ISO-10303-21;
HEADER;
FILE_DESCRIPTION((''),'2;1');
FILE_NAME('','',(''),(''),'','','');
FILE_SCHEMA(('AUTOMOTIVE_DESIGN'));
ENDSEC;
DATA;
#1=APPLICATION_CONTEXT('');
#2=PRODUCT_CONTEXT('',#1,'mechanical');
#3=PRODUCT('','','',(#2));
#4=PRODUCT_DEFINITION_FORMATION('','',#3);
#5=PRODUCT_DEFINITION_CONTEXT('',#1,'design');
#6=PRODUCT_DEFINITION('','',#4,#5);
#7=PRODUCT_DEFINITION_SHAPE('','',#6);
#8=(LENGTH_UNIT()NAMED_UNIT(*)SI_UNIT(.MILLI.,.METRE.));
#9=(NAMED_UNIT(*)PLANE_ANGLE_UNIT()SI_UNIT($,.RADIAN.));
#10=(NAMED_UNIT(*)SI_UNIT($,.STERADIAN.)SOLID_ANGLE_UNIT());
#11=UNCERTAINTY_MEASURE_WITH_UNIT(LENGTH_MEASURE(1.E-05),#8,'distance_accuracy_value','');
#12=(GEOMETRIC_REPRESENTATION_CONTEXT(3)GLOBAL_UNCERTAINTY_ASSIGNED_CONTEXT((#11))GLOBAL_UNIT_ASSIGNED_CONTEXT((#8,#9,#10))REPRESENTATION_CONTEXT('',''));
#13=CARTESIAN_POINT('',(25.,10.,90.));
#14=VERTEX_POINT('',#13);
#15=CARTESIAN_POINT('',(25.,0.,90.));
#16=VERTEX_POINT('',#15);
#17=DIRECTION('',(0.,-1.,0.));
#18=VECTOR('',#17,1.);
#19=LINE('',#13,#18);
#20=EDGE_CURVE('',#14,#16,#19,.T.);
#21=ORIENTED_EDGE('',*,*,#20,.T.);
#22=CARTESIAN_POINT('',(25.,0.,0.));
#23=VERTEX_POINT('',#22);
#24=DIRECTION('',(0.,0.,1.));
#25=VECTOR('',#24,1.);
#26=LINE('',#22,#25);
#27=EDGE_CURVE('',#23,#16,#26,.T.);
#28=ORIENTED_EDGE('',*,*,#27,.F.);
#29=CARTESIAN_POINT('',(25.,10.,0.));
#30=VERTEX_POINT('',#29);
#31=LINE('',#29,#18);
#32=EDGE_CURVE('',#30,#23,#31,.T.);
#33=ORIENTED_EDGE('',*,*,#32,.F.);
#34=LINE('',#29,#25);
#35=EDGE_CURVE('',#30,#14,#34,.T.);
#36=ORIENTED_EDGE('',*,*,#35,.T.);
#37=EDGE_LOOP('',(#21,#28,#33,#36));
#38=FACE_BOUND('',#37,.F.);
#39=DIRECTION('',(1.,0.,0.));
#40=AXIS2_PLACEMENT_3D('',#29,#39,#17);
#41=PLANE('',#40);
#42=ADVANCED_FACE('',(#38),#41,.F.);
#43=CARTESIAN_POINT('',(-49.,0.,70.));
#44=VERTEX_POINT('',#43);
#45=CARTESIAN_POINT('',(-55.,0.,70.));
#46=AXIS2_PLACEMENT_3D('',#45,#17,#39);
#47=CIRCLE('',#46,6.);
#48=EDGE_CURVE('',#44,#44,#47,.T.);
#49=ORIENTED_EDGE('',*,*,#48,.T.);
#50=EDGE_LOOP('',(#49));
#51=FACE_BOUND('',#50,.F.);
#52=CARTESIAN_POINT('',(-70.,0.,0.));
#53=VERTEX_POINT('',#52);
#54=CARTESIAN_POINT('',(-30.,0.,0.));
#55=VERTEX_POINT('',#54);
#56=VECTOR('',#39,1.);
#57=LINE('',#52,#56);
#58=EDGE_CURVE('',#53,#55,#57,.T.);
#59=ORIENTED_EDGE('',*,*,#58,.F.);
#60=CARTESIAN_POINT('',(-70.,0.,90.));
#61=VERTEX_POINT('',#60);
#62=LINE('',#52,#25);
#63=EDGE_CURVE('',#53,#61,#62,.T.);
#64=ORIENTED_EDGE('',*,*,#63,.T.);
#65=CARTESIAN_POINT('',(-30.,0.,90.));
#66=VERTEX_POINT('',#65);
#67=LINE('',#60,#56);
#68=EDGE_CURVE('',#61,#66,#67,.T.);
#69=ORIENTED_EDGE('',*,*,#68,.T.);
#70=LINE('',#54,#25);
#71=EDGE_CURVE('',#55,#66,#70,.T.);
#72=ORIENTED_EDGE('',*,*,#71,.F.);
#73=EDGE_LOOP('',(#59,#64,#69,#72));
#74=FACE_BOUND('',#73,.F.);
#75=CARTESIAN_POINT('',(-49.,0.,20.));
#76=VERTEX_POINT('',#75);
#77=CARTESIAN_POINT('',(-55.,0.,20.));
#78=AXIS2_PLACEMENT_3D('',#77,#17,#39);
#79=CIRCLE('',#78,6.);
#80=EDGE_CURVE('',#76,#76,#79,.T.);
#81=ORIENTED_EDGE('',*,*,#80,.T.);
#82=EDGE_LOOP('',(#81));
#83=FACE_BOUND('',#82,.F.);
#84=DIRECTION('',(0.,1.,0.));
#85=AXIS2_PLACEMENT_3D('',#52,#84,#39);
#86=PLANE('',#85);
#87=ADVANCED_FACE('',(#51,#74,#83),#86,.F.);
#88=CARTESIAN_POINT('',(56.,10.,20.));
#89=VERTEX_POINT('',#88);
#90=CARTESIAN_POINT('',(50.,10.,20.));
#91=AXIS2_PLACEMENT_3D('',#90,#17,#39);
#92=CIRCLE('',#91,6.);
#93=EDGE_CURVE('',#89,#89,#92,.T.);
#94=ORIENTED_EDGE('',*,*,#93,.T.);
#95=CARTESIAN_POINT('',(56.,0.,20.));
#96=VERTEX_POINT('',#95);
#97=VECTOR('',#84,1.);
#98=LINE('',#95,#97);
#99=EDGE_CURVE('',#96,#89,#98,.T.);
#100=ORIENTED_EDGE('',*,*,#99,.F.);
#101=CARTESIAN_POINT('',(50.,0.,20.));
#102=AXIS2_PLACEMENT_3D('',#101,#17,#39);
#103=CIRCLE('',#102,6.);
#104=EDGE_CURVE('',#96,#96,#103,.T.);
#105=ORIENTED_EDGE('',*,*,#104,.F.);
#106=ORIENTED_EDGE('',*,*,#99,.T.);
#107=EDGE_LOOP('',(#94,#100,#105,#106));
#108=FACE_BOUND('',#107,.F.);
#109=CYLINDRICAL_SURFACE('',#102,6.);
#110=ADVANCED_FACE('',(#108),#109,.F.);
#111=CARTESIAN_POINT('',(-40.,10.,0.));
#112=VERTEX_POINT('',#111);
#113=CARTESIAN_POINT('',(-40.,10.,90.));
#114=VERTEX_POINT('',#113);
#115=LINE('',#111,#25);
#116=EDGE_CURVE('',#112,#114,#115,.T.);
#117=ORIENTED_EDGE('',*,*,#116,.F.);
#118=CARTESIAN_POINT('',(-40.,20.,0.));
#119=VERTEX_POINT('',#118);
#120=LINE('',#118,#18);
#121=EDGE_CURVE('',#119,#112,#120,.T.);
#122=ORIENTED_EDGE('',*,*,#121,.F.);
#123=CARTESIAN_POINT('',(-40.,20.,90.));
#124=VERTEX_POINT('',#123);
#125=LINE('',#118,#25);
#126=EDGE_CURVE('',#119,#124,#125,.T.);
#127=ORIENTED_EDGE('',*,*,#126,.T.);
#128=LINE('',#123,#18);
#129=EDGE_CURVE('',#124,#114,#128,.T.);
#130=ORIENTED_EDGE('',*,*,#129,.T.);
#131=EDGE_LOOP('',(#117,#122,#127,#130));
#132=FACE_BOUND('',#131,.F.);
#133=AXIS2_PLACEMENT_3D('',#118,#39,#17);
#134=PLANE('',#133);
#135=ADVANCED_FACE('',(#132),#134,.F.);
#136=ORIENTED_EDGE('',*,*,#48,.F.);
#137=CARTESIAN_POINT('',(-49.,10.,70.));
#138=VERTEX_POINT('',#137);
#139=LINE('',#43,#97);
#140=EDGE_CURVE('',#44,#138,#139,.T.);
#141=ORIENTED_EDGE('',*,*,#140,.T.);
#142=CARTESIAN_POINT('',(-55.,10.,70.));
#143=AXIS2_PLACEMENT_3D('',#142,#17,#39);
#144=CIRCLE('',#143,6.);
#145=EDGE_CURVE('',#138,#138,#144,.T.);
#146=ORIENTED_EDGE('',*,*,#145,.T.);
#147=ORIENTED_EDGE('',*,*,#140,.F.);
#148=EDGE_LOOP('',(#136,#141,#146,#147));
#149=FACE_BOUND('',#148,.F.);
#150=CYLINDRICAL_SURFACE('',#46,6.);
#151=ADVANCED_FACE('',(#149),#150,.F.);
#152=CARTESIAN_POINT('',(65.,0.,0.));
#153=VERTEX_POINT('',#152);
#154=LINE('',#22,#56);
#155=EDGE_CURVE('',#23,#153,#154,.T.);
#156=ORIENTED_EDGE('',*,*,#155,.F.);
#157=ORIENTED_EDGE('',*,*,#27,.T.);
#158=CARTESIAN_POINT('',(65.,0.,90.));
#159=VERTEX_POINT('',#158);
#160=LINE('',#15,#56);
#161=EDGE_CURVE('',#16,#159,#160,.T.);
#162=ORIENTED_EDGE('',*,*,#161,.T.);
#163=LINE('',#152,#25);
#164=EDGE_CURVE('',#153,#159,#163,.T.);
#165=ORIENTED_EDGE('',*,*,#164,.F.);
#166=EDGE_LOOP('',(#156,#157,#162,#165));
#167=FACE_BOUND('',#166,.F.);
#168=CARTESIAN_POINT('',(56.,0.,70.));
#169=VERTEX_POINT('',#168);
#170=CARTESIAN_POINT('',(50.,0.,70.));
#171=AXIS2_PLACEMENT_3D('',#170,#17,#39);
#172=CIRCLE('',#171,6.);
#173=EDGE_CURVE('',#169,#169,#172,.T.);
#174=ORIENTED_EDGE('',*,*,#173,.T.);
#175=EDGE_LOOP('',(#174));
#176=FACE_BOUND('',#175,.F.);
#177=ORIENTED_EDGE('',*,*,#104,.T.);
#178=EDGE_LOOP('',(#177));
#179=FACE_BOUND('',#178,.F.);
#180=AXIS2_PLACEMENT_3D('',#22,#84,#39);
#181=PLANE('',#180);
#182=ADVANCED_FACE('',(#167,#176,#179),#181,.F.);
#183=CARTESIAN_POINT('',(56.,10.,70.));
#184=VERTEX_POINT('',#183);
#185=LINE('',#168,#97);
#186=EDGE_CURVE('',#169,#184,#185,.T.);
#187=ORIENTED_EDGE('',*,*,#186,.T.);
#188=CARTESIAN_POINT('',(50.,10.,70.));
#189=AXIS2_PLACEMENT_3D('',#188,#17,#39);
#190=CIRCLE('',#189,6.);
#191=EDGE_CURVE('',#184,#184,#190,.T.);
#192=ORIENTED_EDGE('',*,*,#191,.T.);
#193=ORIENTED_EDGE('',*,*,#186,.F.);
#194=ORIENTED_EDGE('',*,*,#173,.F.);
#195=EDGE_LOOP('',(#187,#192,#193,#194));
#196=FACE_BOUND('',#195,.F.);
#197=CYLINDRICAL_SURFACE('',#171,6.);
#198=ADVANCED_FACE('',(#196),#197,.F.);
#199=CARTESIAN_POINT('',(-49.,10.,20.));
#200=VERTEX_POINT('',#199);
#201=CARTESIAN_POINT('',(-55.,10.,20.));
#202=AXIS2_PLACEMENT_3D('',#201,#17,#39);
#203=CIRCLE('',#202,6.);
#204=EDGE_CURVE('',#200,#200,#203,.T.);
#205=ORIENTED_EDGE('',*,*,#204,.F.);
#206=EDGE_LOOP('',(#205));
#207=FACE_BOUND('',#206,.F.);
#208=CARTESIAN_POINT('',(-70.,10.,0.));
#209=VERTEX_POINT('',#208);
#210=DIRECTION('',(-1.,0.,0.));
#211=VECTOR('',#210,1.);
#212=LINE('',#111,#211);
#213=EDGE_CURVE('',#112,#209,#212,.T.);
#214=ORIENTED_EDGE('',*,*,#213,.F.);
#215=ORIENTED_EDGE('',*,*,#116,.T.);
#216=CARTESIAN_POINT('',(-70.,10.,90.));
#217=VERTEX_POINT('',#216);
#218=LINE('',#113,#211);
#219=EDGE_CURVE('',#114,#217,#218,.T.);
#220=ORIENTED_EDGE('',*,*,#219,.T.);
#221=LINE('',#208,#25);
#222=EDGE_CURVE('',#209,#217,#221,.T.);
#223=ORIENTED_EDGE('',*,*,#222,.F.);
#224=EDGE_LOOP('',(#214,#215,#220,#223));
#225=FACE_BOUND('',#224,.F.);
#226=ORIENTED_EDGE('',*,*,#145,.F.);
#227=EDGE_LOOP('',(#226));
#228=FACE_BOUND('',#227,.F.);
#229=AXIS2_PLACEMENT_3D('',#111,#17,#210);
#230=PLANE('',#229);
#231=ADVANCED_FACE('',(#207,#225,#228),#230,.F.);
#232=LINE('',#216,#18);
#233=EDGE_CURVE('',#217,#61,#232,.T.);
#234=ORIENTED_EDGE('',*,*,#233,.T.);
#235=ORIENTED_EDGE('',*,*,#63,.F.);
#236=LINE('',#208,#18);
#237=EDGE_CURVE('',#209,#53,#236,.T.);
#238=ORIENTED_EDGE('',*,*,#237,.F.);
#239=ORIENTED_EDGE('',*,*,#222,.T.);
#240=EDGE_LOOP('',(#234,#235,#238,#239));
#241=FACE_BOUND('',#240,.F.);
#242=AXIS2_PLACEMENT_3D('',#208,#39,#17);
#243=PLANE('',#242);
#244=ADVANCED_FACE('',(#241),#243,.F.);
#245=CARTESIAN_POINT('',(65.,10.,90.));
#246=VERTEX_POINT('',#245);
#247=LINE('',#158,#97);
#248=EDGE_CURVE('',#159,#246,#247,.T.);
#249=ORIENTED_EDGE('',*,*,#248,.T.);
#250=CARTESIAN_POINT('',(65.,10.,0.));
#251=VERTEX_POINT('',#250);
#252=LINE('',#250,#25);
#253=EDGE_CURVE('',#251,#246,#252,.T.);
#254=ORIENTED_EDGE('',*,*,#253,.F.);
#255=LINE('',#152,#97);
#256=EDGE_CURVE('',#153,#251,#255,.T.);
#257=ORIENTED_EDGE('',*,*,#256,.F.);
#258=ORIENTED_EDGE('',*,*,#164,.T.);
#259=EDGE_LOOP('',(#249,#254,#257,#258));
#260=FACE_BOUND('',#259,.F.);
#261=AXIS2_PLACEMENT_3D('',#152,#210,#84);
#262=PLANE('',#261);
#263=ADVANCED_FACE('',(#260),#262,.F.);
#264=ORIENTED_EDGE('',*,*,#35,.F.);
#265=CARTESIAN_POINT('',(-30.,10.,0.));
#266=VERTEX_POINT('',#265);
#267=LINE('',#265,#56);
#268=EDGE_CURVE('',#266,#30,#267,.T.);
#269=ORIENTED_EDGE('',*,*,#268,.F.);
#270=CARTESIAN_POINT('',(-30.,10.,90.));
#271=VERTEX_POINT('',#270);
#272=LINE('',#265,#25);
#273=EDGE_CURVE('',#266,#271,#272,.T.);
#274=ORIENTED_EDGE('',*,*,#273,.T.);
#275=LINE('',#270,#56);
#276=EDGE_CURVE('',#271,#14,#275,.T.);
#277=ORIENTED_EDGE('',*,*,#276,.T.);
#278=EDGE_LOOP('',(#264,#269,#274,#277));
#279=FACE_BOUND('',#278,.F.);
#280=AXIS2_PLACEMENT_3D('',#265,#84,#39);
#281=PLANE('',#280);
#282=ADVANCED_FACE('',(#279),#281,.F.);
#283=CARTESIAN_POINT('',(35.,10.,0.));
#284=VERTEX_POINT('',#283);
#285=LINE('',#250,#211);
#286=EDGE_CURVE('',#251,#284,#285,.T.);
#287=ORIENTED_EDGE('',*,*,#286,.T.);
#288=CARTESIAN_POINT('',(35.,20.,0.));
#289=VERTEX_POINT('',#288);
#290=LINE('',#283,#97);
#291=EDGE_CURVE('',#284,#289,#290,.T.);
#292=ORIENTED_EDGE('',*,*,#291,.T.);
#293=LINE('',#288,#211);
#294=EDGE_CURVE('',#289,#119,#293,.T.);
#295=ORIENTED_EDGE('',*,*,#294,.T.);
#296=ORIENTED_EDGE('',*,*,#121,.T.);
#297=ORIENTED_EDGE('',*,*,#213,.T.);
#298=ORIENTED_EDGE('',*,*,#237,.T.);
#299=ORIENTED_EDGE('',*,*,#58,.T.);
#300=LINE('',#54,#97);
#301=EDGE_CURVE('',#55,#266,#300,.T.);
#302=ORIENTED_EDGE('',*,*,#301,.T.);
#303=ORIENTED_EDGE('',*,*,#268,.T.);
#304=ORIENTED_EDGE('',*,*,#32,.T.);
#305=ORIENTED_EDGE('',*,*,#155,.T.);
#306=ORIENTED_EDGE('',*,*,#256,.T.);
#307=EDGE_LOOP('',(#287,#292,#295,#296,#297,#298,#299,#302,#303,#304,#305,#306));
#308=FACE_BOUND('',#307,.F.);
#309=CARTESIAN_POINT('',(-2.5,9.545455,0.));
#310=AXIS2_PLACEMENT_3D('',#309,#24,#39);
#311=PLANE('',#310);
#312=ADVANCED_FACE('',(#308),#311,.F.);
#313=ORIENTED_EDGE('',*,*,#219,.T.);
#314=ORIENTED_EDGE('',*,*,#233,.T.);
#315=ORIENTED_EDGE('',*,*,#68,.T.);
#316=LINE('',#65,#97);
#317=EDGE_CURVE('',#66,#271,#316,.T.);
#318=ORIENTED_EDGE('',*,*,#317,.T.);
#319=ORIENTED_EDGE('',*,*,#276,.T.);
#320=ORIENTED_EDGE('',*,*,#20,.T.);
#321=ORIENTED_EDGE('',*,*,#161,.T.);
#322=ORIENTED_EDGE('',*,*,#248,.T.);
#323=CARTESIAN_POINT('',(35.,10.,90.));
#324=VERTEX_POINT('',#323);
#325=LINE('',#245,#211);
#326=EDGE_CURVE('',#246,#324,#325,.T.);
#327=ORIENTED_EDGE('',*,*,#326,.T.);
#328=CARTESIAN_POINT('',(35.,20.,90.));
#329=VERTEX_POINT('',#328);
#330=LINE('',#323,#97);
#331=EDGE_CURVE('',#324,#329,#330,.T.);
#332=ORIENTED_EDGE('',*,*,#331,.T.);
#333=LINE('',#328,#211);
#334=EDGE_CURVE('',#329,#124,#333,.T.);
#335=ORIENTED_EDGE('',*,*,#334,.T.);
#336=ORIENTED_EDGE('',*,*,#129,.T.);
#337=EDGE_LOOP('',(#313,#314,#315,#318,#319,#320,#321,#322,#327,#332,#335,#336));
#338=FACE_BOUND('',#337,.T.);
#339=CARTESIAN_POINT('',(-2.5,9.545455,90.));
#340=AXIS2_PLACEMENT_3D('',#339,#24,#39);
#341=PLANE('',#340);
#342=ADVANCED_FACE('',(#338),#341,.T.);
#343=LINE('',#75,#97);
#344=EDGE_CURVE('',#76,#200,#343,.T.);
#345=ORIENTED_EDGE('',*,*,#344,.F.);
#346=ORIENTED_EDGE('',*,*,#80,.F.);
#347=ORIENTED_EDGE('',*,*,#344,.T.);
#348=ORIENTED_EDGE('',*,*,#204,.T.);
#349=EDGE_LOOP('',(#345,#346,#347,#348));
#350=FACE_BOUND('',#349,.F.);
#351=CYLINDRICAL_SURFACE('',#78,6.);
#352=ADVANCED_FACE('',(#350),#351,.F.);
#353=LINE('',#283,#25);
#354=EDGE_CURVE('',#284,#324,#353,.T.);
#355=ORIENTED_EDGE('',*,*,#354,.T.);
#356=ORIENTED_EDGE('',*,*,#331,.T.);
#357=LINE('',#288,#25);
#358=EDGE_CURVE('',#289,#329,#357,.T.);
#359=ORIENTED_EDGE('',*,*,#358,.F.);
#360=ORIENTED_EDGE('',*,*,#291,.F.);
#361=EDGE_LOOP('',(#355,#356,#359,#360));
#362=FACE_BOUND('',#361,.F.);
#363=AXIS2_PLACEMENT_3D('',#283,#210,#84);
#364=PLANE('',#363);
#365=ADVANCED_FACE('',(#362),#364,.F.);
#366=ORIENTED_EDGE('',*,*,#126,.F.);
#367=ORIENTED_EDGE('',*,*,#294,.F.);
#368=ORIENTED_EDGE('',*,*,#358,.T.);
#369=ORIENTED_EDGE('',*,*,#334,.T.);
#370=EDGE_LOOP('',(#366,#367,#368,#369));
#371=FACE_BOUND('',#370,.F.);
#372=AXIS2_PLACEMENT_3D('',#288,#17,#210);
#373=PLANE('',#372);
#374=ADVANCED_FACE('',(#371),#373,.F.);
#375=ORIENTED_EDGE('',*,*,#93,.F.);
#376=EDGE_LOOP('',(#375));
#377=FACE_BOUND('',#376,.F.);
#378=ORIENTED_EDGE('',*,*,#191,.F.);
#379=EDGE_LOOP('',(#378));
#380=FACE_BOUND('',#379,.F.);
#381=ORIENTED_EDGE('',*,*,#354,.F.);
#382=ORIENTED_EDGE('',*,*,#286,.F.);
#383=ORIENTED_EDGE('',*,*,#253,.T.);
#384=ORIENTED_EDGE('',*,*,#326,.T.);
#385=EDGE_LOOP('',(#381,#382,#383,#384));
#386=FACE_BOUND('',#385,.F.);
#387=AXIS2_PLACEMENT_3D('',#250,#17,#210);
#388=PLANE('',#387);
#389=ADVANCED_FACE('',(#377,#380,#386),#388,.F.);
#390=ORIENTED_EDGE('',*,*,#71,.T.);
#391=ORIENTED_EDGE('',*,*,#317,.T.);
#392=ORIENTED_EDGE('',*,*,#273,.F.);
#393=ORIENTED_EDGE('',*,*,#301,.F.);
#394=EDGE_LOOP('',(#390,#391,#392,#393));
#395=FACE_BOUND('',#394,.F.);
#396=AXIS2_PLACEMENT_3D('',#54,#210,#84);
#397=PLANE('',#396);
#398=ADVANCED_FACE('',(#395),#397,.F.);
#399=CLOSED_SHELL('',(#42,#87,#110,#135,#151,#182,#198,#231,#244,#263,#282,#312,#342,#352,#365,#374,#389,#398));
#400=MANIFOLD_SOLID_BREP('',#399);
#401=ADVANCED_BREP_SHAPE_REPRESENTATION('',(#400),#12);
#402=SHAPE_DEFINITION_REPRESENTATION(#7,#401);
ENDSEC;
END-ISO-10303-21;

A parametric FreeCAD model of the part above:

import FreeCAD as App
import Part
import Sketcher
from FreeCAD import Vector
Q = App.Units.Quantity

doc = App.newDocument("Part")
body = doc.addObject("PartDesign::Body", "Body")

# Sketch on XY plane
sketch1 = body.newObject("Sketcher::SketchObject", "Sketch")
sketch1.AttachmentSupport = (doc.getObject("XY_Plane"), [""])
sketch1.MapMode = "FlatFace"
sketch1.addGeometry([
    Part.LineSegment(Vector(-70, 10, 0), Vector(-70, 0, 0)),  # 0
    Part.LineSegment(Vector(-70, 0, 0), Vector(-30, 0, 0)),  # 1
    Part.LineSegment(Vector(-30, 0, 0), Vector(-30, 10, 0)),  # 2
    Part.LineSegment(Vector(-30, 10, 0), Vector(25, 10, 0)),  # 3
    Part.LineSegment(Vector(25, 10, 0), Vector(25, 0, 0)),  # 4
    Part.LineSegment(Vector(25, 0, 0), Vector(65, 0, 0)),  # 5
    Part.LineSegment(Vector(65, 0, 0), Vector(65, 10, 0)),  # 6
    Part.LineSegment(Vector(65, 10, 0), Vector(35, 10, 0)),  # 7
    Part.LineSegment(Vector(35, 10, 0), Vector(35, 20, 0)),  # 8
    Part.LineSegment(Vector(35, 20, 0), Vector(-40, 20, 0)),  # 9
    Part.LineSegment(Vector(-40, 20, 0), Vector(-40, 10, 0)),  # 10
    Part.LineSegment(Vector(-40, 10, 0), Vector(-70, 10, 0)),  # 11
], False)
sketch1.addConstraint([
    Sketcher.Constraint("Coincident", 0, 2, 1, 1),
    Sketcher.Constraint("Coincident", 1, 2, 2, 1),
    Sketcher.Constraint("Coincident", 2, 2, 3, 1),
    Sketcher.Constraint("Coincident", 3, 2, 4, 1),
    Sketcher.Constraint("Coincident", 4, 2, 5, 1),
    Sketcher.Constraint("Coincident", 5, 2, 6, 1),
    Sketcher.Constraint("Coincident", 6, 2, 7, 1),
    Sketcher.Constraint("Coincident", 7, 2, 8, 1),
    Sketcher.Constraint("Coincident", 8, 2, 9, 1),
    Sketcher.Constraint("Coincident", 9, 2, 10, 1),
    Sketcher.Constraint("Coincident", 10, 2, 11, 1),
    Sketcher.Constraint("Coincident", 11, 2, 0, 1),
    Sketcher.Constraint("Vertical", 0),
    Sketcher.Constraint("Horizontal", 1),
    Sketcher.Constraint("Vertical", 2),
    Sketcher.Constraint("Horizontal", 3),
    Sketcher.Constraint("Vertical", 4),
    Sketcher.Constraint("Horizontal", 5),
    Sketcher.Constraint("Vertical", 6),
    Sketcher.Constraint("Horizontal", 7),
    Sketcher.Constraint("Vertical", 8),
    Sketcher.Constraint("Horizontal", 9),
    Sketcher.Constraint("Vertical", 10),
    Sketcher.Constraint("Horizontal", 11),
    Sketcher.Constraint("PointOnObject", 0, 2, -1),
    Sketcher.Constraint("PointOnObject", 4, 2, -1),
    Sketcher.Constraint("Horizontal", 3, 2, 6, 2),
    Sketcher.Constraint("Horizontal", 7, 2, 10, 2),
    Sketcher.Constraint("Equal", 1, 5),
    Sketcher.Constraint("Equal", 7, 11),
    Sketcher.Constraint("Equal", 6, 8),
    Sketcher.Constraint("DistanceX", 1, 1, 1, 2, Q("40 mm")),
    Sketcher.Constraint("DistanceX", 3, 1, 3, 2, Q("55 mm")),
    Sketcher.Constraint("DistanceX", 7, 2, 7, 1, Q("30 mm")),
    Sketcher.Constraint("DistanceY", 0, 2, 0, 1, Q("10 mm")),
    Sketcher.Constraint("DistanceX", 0, 2, -1, 1, Q("70 mm")),
])
pad1 = body.newObject("PartDesign::Pad", "Pad")
pad1.Profile = sketch1
pad1.Length = 90

# Sketch on XZ plane
sketch2 = body.newObject("Sketcher::SketchObject", "Sketch001")
sketch2.AttachmentSupport = (doc.getObject("XZ_Plane"), [""])
sketch2.MapMode = "FlatFace"
sketch2.addGeometry([
    Part.Circle(Vector(-55, 20, 0), Vector(0, 0, 1), 6),
    Part.Circle(Vector(-55, 70, 0), Vector(0, 0, 1), 6),
    Part.Circle(Vector(50, 70, 0), Vector(0, 0, 1), 6),
    Part.Circle(Vector(50, 20, 0), Vector(0, 0, 1), 6),
], False)
sketch2.addConstraint([
    Sketcher.Constraint("Equal", 0, 1),
    Sketcher.Constraint("Equal", 1, 2),
    Sketcher.Constraint("Equal", 2, 3),
    Sketcher.Constraint("Horizontal", 1, 3, 2, 3),
    Sketcher.Constraint("Horizontal", 0, 3, 3, 3),
    Sketcher.Constraint("Vertical", 0, 3, 1, 3),
    Sketcher.Constraint("Vertical", 2, 3, 3, 3),
    Sketcher.Constraint("Diameter", 0, Q("12 mm")),
    Sketcher.Constraint("DistanceX", 0, 3, -1, 1, Q("55 mm")),
    Sketcher.Constraint("DistanceY", -1, 1, 0, 3, Q("20 mm")),
    Sketcher.Constraint("DistanceY", -1, 1, 1, 3, Q("70 mm")),
    Sketcher.Constraint("DistanceX", -1, 1, 2, 3, Q("50 mm")),
])
pocket1 = body.newObject("PartDesign::Pocket", "Pocket")
pocket1.Profile = sketch2
pocket1.Type = "ThroughAll"

doc.recompute()
